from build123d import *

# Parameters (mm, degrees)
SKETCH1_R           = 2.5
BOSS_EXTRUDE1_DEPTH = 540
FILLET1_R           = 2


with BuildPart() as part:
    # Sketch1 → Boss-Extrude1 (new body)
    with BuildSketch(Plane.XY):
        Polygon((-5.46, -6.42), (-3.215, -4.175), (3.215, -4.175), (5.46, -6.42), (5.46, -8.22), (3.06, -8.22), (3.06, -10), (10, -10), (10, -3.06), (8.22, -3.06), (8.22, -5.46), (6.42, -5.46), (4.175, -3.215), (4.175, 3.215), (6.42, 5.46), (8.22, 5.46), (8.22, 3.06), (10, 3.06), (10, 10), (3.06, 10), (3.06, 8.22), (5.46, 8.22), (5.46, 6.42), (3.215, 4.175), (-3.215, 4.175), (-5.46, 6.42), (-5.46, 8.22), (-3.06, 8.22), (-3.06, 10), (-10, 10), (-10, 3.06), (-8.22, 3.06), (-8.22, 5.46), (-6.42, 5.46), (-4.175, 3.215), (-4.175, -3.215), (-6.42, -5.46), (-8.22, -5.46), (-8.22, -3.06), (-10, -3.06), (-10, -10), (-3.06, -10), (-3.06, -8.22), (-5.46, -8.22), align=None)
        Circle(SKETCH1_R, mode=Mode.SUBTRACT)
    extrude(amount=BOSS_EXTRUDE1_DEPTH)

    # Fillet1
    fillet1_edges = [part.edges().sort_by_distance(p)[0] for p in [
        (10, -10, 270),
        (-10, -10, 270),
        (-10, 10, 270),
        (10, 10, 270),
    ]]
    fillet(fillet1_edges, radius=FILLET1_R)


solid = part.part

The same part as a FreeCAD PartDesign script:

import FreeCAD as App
import Part
import Sketcher
from FreeCAD import Vector


def edges_at(feature, points):
    """Names of the edges that pass closest to the given points."""
    edges = feature.Shape.Edges
    near = lambda p: min(range(len(edges)), key=lambda i: edges[i].distToShape(Part.Vertex(*p))[0])
    return sorted({f"Edge{near(p) + 1}" for p in points})


def add_polygon(sketch, points):
    """Adds a closed chain of lines whose ends are joined by coincident constraints."""
    first, n = sketch.GeometryCount, len(points)
    for a, b in zip(points, points[1:] + points[:1]):
        sketch.addGeometry(Part.LineSegment(App.Vector(*a, 0), App.Vector(*b, 0)), False)
    for i in range(n):
        sketch.addConstraint(Sketcher.Constraint("Coincident", first + i, 2, first + (i + 1) % n, 1))

doc = App.newDocument("Part")
body = doc.addObject("PartDesign::Body", "Body")

# Sketch on XY plane
sketch1 = body.newObject("Sketcher::SketchObject", "Sketch")
sketch1.AttachmentSupport = (doc.getObject("XY_Plane"), [""])
sketch1.MapMode = "FlatFace"
add_polygon(sketch1, [(-5.5, -6.4), (-3.2, -4.2), (3.2, -4.2), (5.5, -6.4), (5.5, -8.2), (3.1, -8.2), (3.1, -10), (10, -10), (10, -3.1), (8.2, -3.1), (8.2, -5.5), (6.4, -5.5), (4.2, -3.2), (4.2, 3.2), (6.4, 5.5), (8.2, 5.5), (8.2, 3.1), (10, 3.1), (10, 10), (3.1, 10), (3.1, 8.2), (5.5, 8.2), (5.5, 6.4), (3.2, 4.2), (-3.2, 4.2), (-5.5, 6.4), (-5.5, 8.2), (-3.1, 8.2), (-3.1, 10), (-10, 10), (-10, 3.1), (-8.2, 3.1), (-8.2, 5.5), (-6.4, 5.5), (-4.2, 3.2), (-4.2, -3.2), (-6.4, -5.5), (-8.2, -5.5), (-8.2, -3.1), (-10, -3.1), (-10, -10), (-3.1, -10), (-3.1, -8.2), (-5.5, -8.2)])  # lines 0-43
sketch1.addGeometry(Part.Circle(Vector(0, 0, 0), Vector(0, 0, 1), 2.5), False)  # 44
sketch1.addConstraint([
    Sketcher.Constraint("Horizontal", 1),
    Sketcher.Constraint("Vertical", 3),
    Sketcher.Constraint("Horizontal", 4),
    Sketcher.Constraint("Vertical", 5),
    Sketcher.Constraint("Horizontal", 6),
    Sketcher.Constraint("Vertical", 7),
    Sketcher.Constraint("Horizontal", 8),
    Sketcher.Constraint("Vertical", 9),
    Sketcher.Constraint("Horizontal", 10),
    Sketcher.Constraint("Vertical", 12),
    Sketcher.Constraint("Horizontal", 14),
    Sketcher.Constraint("Vertical", 15),
    Sketcher.Constraint("Horizontal", 16),
    Sketcher.Constraint("Vertical", 17),
    Sketcher.Constraint("Horizontal", 18),
    Sketcher.Constraint("Vertical", 19),
    Sketcher.Constraint("Horizontal", 20),
    Sketcher.Constraint("Vertical", 21),
    Sketcher.Constraint("Horizontal", 23),
    Sketcher.Constraint("Vertical", 25),
    Sketcher.Constraint("Horizontal", 26),
    Sketcher.Constraint("Vertical", 27),
    Sketcher.Constraint("Horizontal", 28),
    Sketcher.Constraint("Vertical", 29),
    Sketcher.Constraint("Horizontal", 30),
    Sketcher.Constraint("Vertical", 31),
    Sketcher.Constraint("Horizontal", 32),
    Sketcher.Constraint("Vertical", 34),
    Sketcher.Constraint("Horizontal", 36),
    Sketcher.Constraint("Vertical", 37),
    Sketcher.Constraint("Horizontal", 38),
    Sketcher.Constraint("Vertical", 39),
    Sketcher.Constraint("Horizontal", 40),
    Sketcher.Constraint("Vertical", 41),
    Sketcher.Constraint("Horizontal", 42),
    Sketcher.Constraint("Vertical", 43),
    Sketcher.Constraint("Coincident", 44, 3, -1, 1),
    Sketcher.Constraint("Symmetric", 0, 2, 22, 2, -1, 1),
    Sketcher.Constraint("Symmetric", 2, 2, 24, 2, -1, 1),
    Sketcher.Constraint("Symmetric", 4, 2, 26, 2, -1, 1),
    Sketcher.Constraint("Symmetric", 6, 2, 28, 2, -1, 1),
    Sketcher.Constraint("Symmetric", 8, 2, 30, 2, -1, 1),
    Sketcher.Constraint("Symmetric", 10, 2, 32, 2, -1, 1),
    Sketcher.Constraint("Symmetric", 11, 2, 33, 2, -1, 1),
    Sketcher.Constraint("Symmetric", 13, 2, 35, 2, -1, 1),
    Sketcher.Constraint("Symmetric", 15, 2, 37, 2, -1, 1),
    Sketcher.Constraint("Symmetric", 17, 2, 39, 2, -1, 1),
    Sketcher.Constraint("Symmetric", 19, 2, 41, 2, -1, 1),
    Sketcher.Constraint("Symmetric", 21, 2, 43, 2, -1, 1),
    Sketcher.Constraint("Symmetric", 21, 2, 24, 2, -2),
    Sketcher.Constraint("Symmetric", 19, 2, 26, 2, -2),
    Sketcher.Constraint("Symmetric", 17, 2, 28, 2, -2),
    Sketcher.Constraint("Symmetric", 15, 2, 30, 2, -2),
    Sketcher.Constraint("Symmetric", 13, 2, 32, 2, -2),
    Sketcher.Constraint("Perpendicular", 0, 2),
    Sketcher.Constraint("Parallel", 2, 11),
    Sketcher.Constraint("Perpendicular", 11, 13),
    Sketcher.Constraint("Perpendicular", 22, 24),
    Sketcher.Constraint("Perpendicular", 33, 35),
    Sketcher.Constraint("Horizontal", 12, 2, 33, 2),
    Sketcher.Constraint("Equal", 36, 3),
    Sketcher.Constraint("Equal", 38, 5),
    Sketcher.Constraint("Equal", 40, 7),
    Sketcher.Constraint("Equal", 42, 9),
    Sketcher.Constraint("Equal", 23, 12),
    Sketcher.Constraint("Equal", 2, 11),
    Sketcher.Constraint("Diameter", 44, 5.0),
    Sketcher.Constraint("DistanceX", 4, 2, 4, 1, 2.4),
    Sketcher.Constraint("DistanceX", 10, 2, 10, 1, 1.8),
    Sketcher.Constraint("DistanceY", 5, 2, -1, 1, 10.0),
    Sketcher.Constraint("DistanceX", 1, 1, 1, 2, 6.43),
    Sketcher.Constraint("DistanceX", 6, 1, 6, 2, 6.94),
    Sketcher.Constraint("DistanceX", 8, 2, 8, 1, 1.78),
])
pad1 = body.newObject("PartDesign::Pad", "Pad")
pad1.Profile = sketch1
pad1.Length = 540
doc.recompute()

fillet = body.newObject("PartDesign::Fillet", "Fillet")
fillet.Base = (pad1, edges_at(pad1, [
    (10, -10, 270),
    (-10, -10, 270),
    (-10, 10, 270),
    (10, 10, 270),
]))
fillet.Radius = 2

doc.recompute()
